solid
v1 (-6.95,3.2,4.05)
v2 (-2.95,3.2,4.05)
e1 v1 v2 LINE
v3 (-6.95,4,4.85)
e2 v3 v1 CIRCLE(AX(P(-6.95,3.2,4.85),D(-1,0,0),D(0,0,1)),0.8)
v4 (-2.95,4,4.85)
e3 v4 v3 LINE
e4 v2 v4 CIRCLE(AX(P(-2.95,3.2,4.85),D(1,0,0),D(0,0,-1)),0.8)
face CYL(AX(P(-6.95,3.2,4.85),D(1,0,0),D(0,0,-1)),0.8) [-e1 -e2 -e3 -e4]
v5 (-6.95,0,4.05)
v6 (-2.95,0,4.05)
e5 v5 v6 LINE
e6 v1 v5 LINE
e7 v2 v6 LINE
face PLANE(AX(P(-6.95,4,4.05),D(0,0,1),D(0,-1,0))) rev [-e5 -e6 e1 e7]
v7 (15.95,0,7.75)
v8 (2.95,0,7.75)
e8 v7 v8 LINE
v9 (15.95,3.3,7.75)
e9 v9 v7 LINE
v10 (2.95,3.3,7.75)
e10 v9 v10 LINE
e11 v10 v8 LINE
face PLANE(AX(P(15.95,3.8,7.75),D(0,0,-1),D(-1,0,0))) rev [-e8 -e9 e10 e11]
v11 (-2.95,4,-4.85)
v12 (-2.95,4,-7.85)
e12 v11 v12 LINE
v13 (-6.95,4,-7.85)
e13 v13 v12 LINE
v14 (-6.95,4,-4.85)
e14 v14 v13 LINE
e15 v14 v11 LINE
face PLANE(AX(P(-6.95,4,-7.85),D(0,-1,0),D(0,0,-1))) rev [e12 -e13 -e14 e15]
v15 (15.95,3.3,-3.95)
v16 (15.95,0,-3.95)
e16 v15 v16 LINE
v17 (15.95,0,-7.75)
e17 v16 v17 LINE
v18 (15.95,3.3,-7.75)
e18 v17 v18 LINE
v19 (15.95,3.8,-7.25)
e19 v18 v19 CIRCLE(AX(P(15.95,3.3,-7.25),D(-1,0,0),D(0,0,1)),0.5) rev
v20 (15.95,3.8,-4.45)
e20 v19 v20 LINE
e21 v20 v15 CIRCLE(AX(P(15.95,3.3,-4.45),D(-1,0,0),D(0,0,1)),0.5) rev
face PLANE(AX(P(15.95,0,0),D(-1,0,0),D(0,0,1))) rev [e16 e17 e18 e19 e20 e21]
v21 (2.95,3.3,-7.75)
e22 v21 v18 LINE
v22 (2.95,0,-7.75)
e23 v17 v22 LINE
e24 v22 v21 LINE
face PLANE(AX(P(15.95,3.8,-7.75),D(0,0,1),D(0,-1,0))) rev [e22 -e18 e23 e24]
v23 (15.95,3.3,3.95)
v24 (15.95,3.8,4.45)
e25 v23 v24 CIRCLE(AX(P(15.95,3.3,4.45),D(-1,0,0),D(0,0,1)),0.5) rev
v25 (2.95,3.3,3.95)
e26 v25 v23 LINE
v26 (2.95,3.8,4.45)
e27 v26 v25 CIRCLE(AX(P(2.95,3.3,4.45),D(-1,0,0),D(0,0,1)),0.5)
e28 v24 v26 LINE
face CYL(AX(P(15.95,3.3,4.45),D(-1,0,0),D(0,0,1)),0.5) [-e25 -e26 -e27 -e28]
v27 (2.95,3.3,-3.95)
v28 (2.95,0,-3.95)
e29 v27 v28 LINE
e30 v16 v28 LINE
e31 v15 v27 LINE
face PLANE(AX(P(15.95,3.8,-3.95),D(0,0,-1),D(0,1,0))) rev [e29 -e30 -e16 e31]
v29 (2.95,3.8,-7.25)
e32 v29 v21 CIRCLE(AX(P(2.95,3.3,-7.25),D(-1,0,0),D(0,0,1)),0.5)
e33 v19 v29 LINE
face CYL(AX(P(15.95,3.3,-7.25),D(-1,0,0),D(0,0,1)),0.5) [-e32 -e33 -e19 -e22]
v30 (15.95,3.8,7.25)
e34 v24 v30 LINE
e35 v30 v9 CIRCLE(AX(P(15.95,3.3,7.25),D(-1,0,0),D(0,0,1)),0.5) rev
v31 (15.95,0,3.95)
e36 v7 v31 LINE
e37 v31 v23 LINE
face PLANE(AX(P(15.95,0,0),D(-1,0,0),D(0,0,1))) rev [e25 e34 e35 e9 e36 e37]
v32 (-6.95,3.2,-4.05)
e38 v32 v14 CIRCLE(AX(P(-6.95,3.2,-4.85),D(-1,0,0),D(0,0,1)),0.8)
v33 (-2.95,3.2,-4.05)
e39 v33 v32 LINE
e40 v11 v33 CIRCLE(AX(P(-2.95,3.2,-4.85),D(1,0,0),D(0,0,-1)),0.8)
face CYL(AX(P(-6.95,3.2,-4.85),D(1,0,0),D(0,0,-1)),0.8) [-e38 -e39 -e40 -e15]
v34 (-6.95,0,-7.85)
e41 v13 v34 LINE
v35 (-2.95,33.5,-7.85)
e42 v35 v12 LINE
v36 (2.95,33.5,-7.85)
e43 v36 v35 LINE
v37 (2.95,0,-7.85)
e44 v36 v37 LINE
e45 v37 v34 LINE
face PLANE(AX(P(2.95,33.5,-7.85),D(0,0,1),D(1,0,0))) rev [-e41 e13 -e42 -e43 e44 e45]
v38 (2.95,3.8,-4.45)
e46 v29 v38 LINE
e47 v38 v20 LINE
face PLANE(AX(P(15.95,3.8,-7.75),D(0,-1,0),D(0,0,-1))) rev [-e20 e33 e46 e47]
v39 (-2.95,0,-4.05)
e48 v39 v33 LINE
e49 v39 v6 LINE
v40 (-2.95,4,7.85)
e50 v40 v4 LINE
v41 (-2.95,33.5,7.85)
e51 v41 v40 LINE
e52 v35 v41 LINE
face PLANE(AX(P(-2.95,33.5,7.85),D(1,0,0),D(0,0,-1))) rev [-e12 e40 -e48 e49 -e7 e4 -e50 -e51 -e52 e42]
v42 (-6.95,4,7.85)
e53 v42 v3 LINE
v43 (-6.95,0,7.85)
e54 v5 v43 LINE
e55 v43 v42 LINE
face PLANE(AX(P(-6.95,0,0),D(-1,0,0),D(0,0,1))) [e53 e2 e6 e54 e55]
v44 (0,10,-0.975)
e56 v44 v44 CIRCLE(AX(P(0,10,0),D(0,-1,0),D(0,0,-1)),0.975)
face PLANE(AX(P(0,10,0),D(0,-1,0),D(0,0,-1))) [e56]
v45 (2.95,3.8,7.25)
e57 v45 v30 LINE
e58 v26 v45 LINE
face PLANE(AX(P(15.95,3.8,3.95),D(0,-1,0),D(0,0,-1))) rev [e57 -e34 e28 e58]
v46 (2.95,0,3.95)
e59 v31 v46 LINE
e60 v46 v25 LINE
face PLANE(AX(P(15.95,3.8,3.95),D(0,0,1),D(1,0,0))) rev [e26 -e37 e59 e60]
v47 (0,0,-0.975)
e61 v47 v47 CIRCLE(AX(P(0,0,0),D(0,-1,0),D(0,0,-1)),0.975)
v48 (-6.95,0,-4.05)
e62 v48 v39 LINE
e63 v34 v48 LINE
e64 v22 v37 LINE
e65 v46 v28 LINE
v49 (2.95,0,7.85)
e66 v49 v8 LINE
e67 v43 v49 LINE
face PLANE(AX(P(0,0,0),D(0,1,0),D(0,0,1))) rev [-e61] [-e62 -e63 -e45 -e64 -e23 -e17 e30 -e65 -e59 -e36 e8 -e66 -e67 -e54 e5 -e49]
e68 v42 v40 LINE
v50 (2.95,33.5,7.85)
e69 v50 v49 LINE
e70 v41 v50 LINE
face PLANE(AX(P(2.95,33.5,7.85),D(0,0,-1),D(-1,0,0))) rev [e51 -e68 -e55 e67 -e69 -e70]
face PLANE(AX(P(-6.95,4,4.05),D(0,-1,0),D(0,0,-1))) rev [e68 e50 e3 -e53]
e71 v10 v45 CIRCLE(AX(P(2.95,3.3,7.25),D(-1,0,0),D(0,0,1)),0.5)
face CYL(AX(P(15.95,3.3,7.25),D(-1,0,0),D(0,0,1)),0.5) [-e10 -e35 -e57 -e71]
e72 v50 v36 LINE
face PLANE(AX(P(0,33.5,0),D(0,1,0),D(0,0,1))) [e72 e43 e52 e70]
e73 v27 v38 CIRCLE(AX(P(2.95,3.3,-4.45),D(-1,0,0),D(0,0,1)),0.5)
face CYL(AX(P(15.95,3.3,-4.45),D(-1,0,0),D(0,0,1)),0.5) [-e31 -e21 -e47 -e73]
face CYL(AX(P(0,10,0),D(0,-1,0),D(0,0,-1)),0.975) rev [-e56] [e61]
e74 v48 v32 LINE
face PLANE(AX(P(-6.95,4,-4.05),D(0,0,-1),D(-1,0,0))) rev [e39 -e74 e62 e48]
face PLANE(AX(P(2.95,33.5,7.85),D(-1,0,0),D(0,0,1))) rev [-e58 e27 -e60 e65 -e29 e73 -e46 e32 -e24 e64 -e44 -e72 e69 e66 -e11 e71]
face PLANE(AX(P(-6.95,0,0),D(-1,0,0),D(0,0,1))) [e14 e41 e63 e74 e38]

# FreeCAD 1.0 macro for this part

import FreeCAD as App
import Part
import Sketcher

V = App.Vector


def edges_at(feature, points):
    """Names of the edges that pass closest to the given points."""
    edges = feature.Shape.Edges
    near = lambda p: min(range(len(edges)), key=lambda i: edges[i].distToShape(Part.Vertex(*p))[0])
    return sorted({f"Edge{near(p) + 1}" for p in points})


def add_polygon(sketch, points):
    """Adds a closed chain of lines whose ends are joined by coincident constraints."""
    first, n = sketch.GeometryCount, len(points)
    for a, b in zip(points, points[1:] + points[:1]):
        sketch.addGeometry(Part.LineSegment(App.Vector(*a, 0), App.Vector(*b, 0)), False)
    for i in range(n):
        sketch.addConstraint(Sketcher.Constraint("Coincident", first + i, 2, first + (i + 1) % n, 1))

doc = App.newDocument("Part")
body = doc.addObject("PartDesign::Body", "Body")

sketch1 = body.newObject("Sketcher::SketchObject", "Sketch")
sketch1.AttachmentSupport = (doc.getObject("XZ_Plane"), [""])
sketch1.MapMode = "FlatFace"
add_polygon(sketch1, [(-3, -8), (-3, 8), (3, 8), (3, -8)])
sketch1.addConstraint(Sketcher.Constraint("Vertical", 0))
sketch1.addConstraint(Sketcher.Constraint("Horizontal", 1))
sketch1.addConstraint(Sketcher.Constraint("Vertical", 2))
sketch1.addConstraint(Sketcher.Constraint("Horizontal", 3))
sketch1.addConstraint(Sketcher.Constraint("Symmetric", 0, 2, 2, 2, -1, 1))
sketch1.addConstraint(Sketcher.Constraint("DistanceX", 1, 1, 1, 2, 5.9))
sketch1.addConstraint(Sketcher.Constraint("DistanceY", 0, 1, 0, 2, 15.7))
pad1 = body.newObject("PartDesign::Pad", "Pad")
pad1.Profile = sketch1
pad1.Length = 33.5
pad1.Reversed = True

sketch2 = body.newObject("Sketcher::SketchObject", "Sketch001")
sketch2.AttachmentSupport = (doc.getObject("XZ_Plane"), [""])
sketch2.MapMode = "FlatFace"
sketch2.addGeometry(Part.Circle(V(0, 0, 0), V(0, 0, 1), 1), False)
sketch2.addConstraint(Sketcher.Constraint("Coincident", 0, 3, -1, 1))
sketch2.addConstraint(Sketcher.Constraint("Diameter", 0, 1.95))
pocket1 = body.newObject("PartDesign::Pocket", "Pocket")
pocket1.Profile = sketch2
pocket1.Length = 10

sketch3 = body.newObject("Sketcher::SketchObject", "Sketch002")
sketch3.AttachmentSupport = (doc.getObject("YZ_Plane"), [""])
sketch3.MapMode = "FlatFace"
sketch3.AttachmentOffset = App.Placement(V(0, 0, 2.95), App.Rotation())
add_polygon(sketch3, [(3.8, 7.8), (0, 7.8), (0, 4), (3.8, 4)])
add_polygon(sketch3, [(3.8, -4), (0, -4), (0, -7.8), (3.8, -7.8)])
sketch3.addConstraint(Sketcher.Constraint("Horizontal", 0))
sketch3.addConstraint(Sketcher.Constraint("Vertical", 1))
sketch3.addConstraint(Sketcher.Constraint("Horizontal", 2))
sketch3.addConstraint(Sketcher.Constraint("Vertical", 3))
sketch3.addConstraint(Sketcher.Constraint("Horizontal", 4))
sketch3.addConstraint(Sketcher.Constraint("Vertical", 5))
sketch3.addConstraint(Sketcher.Constraint("Horizontal", 6))
sketch3.addConstraint(Sketcher.Constraint("Vertical", 7))
sketch3.addConstraint(Sketcher.Constraint("Symmetric", 1, 2, 4, 2, -1, 1))
sketch3.addConstraint(Sketcher.Constraint("Symmetric", 0, 2, 5, 2, -1))
sketch3.addConstraint(Sketcher.Constraint("Vertical", 3, 2, 6, 2))
sketch3.addConstraint(Sketcher.Constraint("Equal", 6, 1))
sketch3.addConstraint(Sketcher.Constraint("DistanceX", 0, 2, 0, 1, 3.8))
sketch3.addConstraint(Sketcher.Constraint("DistanceY", 4, 2, 1, 2, 7.9))
pad2 = body.newObject("PartDesign::Pad", "Pad001")
pad2.Profile = sketch3
pad2.Length = 13

sketch4 = body.newObject("Sketcher::SketchObject", "Sketch003")
sketch4.AttachmentSupport = (doc.getObject("YZ_Plane"), [""])
sketch4.MapMode = "FlatFace"
sketch4.AttachmentOffset = App.Placement(V(0, 0, -2.95), App.Rotation())
add_polygon(sketch4, [(4, -7.8), (0, -7.8), (0, -4), (4, -4)])
add_polygon(sketch4, [(4, 4), (0, 4), (0, 7.8), (4, 7.8)])
sketch4.addConstraint(Sketcher.Constraint("Horizontal", 0))
sketch4.addConstraint(Sketcher.Constraint("Vertical", 1))
sketch4.addConstraint(Sketcher.Constraint("Horizontal", 2))
sketch4.addConstraint(Sketcher.Constraint("Vertical", 3))
sketch4.addConstraint(Sketcher.Constraint("Horizontal", 4))
sketch4.addConstraint(Sketcher.Constraint("Vertical", 5))
sketch4.addConstraint(Sketcher.Constraint("Horizontal", 6))
sketch4.addConstraint(Sketcher.Constraint("Vertical", 7))
sketch4.addConstraint(Sketcher.Constraint("Symmetric", 1, 2, 4, 2, -1, 1))
sketch4.addConstraint(Sketcher.Constraint("Symmetric", 0, 2, 5, 2, -1))
sketch4.addConstraint(Sketcher.Constraint("Vertical", 3, 2, 6, 2))
sketch4.addConstraint(Sketcher.Constraint("DistanceX", 0, 2, 0, 1, 4.0))
sketch4.addConstraint(Sketcher.Constraint("DistanceY", 1, 1, 1, 2, 3.8))
sketch4.addConstraint(Sketcher.Constraint("DistanceY", 1, 2, 4, 2, 8.1))
pad3 = body.newObject("PartDesign::Pad", "Pad002")
pad3.Profile = sketch4
pad3.Length = 4
pad3.Reversed = True
doc.recompute()

fillet = body.newObject("PartDesign::Fillet", "Fillet")
fillet.Base = (pad3, edges_at(pad3, [(-4.95, 4, -4.05), (-4.95, 4, 4.05)]))
fillet.Radius = 0.8
doc.recompute()

fillet2 = body.newObject("PartDesign::Fillet", "Fillet001")
fillet2.Base = (fillet, edges_at(fillet, [
    (9.45, 3.8, 7.75),
    (9.45, 3.8, 3.95),
    (9.45, 3.8, -3.95),
    (9.45, 3.8, -7.75),
]))
fillet2.Radius = 0.5

doc.recompute()
